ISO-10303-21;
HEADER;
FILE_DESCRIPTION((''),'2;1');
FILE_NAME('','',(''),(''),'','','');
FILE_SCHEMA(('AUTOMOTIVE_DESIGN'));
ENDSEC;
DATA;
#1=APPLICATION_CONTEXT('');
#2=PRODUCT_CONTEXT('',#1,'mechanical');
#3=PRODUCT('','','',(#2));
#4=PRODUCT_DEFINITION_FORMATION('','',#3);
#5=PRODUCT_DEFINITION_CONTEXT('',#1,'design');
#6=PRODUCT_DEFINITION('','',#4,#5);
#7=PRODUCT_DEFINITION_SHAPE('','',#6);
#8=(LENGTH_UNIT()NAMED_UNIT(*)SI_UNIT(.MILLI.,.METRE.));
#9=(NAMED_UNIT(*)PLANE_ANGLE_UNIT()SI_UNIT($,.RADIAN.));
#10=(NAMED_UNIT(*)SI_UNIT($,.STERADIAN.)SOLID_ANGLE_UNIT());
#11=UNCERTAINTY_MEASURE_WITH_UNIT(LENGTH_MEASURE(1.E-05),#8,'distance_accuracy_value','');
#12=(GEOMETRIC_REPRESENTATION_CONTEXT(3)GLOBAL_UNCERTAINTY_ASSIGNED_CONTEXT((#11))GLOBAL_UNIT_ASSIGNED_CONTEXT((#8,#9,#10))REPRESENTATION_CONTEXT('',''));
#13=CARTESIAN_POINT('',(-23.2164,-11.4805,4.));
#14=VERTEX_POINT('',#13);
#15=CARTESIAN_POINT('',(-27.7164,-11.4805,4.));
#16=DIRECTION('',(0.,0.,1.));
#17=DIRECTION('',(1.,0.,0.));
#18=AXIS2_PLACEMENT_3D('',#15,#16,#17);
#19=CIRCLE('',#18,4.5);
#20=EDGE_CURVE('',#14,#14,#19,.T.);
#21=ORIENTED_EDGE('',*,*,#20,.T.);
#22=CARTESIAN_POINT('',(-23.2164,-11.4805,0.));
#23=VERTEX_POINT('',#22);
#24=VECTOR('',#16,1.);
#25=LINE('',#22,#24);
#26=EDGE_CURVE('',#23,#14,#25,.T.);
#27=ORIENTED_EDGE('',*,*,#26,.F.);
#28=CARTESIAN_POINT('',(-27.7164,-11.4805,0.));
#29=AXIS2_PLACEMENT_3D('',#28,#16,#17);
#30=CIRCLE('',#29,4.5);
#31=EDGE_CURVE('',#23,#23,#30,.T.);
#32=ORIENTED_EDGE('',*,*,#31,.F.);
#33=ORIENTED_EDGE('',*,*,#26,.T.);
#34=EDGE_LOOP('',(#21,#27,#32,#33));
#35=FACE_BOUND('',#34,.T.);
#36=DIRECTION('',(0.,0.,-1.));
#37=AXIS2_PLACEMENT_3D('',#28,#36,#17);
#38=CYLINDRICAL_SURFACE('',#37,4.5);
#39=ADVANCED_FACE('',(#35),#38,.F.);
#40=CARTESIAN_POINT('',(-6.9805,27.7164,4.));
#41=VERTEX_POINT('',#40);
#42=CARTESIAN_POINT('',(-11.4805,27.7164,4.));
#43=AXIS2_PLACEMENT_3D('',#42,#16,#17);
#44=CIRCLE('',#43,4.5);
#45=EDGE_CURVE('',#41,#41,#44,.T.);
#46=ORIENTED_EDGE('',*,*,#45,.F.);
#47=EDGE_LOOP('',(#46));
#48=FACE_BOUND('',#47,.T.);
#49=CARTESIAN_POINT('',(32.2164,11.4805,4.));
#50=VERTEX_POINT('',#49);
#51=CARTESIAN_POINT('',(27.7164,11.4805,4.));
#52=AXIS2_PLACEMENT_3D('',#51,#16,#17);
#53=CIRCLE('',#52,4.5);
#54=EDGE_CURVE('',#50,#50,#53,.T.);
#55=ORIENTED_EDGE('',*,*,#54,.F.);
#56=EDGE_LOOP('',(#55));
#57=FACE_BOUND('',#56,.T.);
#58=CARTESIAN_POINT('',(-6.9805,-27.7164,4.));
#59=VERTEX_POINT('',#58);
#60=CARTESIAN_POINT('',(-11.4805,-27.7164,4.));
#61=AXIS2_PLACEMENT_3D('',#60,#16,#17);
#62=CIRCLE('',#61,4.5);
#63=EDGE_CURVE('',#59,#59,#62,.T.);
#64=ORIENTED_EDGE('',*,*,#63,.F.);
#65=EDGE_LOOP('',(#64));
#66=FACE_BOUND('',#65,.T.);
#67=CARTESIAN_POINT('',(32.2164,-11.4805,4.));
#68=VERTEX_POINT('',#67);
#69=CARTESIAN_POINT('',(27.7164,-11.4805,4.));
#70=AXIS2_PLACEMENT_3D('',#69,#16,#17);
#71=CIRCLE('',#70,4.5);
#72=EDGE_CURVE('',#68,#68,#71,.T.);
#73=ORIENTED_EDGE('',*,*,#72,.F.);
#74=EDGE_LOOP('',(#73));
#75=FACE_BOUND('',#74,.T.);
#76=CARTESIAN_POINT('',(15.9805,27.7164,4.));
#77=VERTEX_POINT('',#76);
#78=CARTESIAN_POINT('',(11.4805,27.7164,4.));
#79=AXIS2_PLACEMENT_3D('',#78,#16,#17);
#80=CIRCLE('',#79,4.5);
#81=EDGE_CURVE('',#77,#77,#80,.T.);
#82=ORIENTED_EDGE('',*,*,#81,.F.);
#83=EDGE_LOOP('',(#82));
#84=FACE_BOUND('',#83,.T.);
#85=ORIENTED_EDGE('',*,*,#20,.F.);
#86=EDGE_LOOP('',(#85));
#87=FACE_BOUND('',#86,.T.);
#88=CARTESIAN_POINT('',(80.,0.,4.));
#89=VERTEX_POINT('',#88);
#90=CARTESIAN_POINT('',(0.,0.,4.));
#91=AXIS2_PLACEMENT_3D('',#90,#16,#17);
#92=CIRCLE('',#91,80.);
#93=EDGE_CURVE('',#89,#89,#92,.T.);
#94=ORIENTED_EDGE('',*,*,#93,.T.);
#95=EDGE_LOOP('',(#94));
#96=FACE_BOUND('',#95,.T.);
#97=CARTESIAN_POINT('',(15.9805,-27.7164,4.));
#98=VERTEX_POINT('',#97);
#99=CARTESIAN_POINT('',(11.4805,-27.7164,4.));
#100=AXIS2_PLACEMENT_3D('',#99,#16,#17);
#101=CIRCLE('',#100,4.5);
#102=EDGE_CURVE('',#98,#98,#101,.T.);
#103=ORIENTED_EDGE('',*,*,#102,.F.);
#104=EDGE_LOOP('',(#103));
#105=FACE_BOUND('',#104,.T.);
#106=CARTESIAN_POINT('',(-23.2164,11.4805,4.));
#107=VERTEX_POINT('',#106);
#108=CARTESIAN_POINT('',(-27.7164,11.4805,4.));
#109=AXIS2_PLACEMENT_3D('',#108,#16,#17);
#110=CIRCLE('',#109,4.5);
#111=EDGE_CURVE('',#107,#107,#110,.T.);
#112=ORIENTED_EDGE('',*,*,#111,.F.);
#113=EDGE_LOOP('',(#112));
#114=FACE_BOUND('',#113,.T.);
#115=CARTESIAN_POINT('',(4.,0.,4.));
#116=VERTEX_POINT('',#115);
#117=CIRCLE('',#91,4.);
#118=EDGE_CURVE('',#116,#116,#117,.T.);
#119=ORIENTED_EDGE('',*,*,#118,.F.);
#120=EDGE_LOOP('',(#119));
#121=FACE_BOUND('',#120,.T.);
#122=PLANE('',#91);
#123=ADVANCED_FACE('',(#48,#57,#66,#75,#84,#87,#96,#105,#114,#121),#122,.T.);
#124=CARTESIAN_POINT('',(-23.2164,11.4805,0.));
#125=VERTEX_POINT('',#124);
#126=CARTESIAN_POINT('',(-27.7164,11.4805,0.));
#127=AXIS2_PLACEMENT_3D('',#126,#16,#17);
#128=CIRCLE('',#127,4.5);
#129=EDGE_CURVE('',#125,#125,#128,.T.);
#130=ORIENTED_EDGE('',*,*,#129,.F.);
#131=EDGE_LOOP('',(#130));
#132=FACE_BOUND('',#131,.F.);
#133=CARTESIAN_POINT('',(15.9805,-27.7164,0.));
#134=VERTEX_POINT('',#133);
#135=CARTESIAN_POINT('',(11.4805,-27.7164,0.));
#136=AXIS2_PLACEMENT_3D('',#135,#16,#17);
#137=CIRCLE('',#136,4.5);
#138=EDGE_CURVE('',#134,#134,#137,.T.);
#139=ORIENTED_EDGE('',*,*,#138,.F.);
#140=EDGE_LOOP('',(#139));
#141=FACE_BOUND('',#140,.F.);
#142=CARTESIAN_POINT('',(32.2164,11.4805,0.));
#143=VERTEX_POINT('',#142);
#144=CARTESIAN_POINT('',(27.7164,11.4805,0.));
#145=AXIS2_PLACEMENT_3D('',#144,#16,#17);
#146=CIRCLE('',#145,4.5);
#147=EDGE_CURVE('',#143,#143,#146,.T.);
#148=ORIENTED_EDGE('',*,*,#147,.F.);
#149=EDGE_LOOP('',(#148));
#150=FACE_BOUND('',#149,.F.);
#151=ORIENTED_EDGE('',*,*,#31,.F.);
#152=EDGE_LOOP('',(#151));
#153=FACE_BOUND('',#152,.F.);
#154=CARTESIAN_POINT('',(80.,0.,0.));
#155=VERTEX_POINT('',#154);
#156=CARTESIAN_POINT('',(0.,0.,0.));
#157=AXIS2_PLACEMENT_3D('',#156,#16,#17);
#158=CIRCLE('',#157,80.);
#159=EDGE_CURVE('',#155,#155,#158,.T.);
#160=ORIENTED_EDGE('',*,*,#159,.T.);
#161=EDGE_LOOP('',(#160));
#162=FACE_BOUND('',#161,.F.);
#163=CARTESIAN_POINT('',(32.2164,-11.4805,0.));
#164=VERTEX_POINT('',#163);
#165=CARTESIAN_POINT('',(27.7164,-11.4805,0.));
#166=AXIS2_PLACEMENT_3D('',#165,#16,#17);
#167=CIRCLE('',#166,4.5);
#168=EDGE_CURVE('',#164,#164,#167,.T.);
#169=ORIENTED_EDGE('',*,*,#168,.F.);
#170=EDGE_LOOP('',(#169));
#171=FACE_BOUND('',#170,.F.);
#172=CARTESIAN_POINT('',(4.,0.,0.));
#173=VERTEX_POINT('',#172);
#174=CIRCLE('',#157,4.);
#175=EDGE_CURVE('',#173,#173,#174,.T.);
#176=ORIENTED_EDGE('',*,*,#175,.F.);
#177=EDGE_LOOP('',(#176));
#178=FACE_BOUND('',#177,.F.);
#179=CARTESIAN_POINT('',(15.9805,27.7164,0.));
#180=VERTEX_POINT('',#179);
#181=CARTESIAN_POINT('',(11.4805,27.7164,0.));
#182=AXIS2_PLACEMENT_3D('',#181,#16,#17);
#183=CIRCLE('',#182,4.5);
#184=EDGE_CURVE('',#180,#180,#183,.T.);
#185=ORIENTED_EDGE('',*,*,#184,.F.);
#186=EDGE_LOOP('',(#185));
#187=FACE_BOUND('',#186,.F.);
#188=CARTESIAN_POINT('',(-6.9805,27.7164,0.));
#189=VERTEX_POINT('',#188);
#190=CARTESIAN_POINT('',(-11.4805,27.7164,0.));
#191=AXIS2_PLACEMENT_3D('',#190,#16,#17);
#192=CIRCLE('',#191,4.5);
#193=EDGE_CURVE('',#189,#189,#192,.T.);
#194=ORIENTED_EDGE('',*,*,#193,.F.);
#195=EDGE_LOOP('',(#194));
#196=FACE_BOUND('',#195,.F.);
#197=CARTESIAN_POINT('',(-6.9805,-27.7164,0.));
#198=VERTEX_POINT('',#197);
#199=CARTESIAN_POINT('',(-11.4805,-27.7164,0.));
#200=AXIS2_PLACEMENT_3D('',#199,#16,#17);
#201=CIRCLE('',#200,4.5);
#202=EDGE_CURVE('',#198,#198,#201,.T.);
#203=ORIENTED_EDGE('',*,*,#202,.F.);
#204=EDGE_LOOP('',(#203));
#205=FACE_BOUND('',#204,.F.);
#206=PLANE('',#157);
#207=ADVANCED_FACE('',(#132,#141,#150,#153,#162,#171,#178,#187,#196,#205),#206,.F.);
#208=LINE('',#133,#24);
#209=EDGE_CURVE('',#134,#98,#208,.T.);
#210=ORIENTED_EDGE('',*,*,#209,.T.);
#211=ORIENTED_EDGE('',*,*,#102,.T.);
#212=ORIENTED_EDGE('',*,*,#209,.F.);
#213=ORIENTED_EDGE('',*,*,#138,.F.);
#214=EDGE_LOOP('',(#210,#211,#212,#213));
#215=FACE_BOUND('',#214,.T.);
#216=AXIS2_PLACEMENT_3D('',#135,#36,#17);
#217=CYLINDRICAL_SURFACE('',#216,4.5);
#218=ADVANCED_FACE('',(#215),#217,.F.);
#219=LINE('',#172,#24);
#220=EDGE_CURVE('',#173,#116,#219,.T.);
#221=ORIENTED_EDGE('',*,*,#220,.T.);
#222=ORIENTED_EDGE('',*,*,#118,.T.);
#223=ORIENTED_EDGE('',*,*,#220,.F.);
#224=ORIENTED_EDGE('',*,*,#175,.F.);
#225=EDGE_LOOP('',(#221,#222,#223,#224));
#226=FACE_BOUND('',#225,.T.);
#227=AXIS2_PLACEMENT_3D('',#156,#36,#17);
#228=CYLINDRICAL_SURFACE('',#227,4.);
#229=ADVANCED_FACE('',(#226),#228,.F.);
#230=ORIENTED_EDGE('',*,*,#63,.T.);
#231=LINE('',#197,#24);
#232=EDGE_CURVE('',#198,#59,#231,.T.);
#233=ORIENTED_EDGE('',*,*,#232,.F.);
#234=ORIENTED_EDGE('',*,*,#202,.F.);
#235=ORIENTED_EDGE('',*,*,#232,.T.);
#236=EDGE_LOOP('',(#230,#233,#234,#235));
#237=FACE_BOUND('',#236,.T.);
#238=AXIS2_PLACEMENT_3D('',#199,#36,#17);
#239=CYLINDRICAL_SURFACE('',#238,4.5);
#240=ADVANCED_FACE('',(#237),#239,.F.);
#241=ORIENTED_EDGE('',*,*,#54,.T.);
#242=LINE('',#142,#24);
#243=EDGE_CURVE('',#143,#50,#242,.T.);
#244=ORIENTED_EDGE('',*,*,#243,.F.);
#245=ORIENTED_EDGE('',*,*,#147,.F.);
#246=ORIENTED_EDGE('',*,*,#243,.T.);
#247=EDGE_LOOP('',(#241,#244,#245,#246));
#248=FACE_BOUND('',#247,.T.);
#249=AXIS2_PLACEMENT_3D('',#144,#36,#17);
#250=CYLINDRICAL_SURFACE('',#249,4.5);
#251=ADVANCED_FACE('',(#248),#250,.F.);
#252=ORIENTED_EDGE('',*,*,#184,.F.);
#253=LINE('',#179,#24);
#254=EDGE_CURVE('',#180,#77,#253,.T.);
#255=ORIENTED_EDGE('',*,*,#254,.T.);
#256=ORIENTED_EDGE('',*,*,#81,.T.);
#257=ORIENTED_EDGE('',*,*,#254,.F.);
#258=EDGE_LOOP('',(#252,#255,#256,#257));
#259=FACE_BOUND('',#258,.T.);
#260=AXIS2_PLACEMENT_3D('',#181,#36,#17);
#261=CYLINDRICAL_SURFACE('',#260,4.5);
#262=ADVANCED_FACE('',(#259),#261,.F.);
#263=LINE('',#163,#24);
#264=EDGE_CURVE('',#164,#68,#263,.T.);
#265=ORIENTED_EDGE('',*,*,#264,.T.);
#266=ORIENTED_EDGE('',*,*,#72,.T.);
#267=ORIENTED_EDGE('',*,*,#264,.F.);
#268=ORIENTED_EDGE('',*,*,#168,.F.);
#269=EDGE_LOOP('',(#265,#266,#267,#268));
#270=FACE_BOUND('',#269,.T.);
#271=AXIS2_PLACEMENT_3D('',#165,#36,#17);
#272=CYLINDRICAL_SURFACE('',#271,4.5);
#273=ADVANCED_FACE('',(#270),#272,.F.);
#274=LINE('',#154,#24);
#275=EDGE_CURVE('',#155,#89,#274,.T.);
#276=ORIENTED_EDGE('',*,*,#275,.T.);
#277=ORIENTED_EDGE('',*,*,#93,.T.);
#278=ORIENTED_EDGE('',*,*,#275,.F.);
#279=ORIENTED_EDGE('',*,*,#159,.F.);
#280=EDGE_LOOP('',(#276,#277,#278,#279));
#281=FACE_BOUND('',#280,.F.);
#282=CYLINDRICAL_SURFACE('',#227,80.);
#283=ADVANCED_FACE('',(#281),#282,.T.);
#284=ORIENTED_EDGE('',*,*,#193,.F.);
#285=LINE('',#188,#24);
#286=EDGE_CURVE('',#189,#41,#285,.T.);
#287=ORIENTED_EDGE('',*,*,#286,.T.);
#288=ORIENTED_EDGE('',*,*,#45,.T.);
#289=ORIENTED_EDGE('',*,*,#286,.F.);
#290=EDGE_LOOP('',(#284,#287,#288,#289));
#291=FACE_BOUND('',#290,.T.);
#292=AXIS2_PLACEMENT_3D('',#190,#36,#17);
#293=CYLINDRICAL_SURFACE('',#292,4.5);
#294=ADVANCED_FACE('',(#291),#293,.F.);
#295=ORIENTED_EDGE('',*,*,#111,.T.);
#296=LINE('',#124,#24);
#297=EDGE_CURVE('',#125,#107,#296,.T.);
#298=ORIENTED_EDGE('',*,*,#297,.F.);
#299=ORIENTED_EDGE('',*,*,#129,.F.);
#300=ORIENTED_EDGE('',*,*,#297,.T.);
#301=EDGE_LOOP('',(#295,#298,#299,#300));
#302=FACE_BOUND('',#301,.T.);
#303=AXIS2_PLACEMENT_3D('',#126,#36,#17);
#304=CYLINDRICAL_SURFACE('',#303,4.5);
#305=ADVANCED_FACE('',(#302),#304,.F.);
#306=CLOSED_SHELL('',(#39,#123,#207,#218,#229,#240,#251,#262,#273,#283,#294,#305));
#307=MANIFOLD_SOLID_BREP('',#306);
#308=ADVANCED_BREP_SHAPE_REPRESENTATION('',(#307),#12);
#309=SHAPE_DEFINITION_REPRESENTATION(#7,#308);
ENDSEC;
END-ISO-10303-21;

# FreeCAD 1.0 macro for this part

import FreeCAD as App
import Part
import Sketcher

doc = App.newDocument("Part")
body = doc.addObject("PartDesign::Body", "Body")

# Sketch on XY plane
sketch1 = body.newObject("Sketcher::SketchObject", "Sketch")
sketch1.AttachmentSupport = (doc.getObject("XY_Plane"), [""])
sketch1.MapMode = "FlatFace"
sketch1.addGeometry([
    Part.Circle(App.Vector(0, 0, 0), App.Vector(0, 0, 1), 80),  # 0
    Part.Circle(App.Vector(-11.5, -27.7, 0), App.Vector(0, 0, 1), 4.5),  # 1
    Part.Circle(App.Vector(-27.7, -11.5, 0), App.Vector(0, 0, 1), 4.5),  # 2
    Part.Circle(App.Vector(11.5, -27.7, 0), App.Vector(0, 0, 1), 4.5),  # 3
    Part.Circle(App.Vector(27.7, -11.5, 0), App.Vector(0, 0, 1), 4.5),  # 4
    Part.Circle(App.Vector(-27.7, 11.5, 0), App.Vector(0, 0, 1), 4.5),  # 5
    Part.Circle(App.Vector(-11.5, 27.7, 0), App.Vector(0, 0, 1), 4.5),  # 6
    Part.Circle(App.Vector(0, 0, 0), App.Vector(0, 0, 1), 4),  # 7
    Part.Circle(App.Vector(27.7, 11.5, 0), App.Vector(0, 0, 1), 4.5),  # 8
    Part.Circle(App.Vector(11.5, 27.7, 0), App.Vector(0, 0, 1), 4.5),  # 9
], False)
sketch1.addConstraint([
    Sketcher.Constraint("Coincident", 0, 3, -1, 1),
    Sketcher.Constraint("Coincident", 7, 3, -1, 1),
    Sketcher.Constraint("Equal", 1, 2),
    Sketcher.Constraint("Equal", 2, 3),
    Sketcher.Constraint("Equal", 3, 4),
    Sketcher.Constraint("Equal", 4, 5),
    Sketcher.Constraint("Equal", 5, 6),
    Sketcher.Constraint("Equal", 6, 8),
    Sketcher.Constraint("Equal", 8, 9),
    Sketcher.Constraint("Symmetric", 4, 3, 5, 3, -1, 1),
    Sketcher.Constraint("Symmetric", 3, 3, 6, 3, -1, 1),
    Sketcher.Constraint("Symmetric", 2, 3, 8, 3, -1, 1),
    Sketcher.Constraint("Symmetric", 1, 3, 9, 3, -1, 1),
    Sketcher.Constraint("Symmetric", 1, 3, 3, 3, -2),
    Sketcher.Constraint("Symmetric", 2, 3, 4, 3, -2),
    Sketcher.Constraint("Diameter", 0, 160.0),
    Sketcher.Constraint("Diameter", 1, 9.0),
    Sketcher.Constraint("Diameter", 7, 8.0),
    Sketcher.Constraint("DistanceX", 2, 3, 1, 3, 16.236),
    Sketcher.Constraint("DistanceY", 1, 3, 2, 3, 16.236),
    Sketcher.Constraint("DistanceX", 1, 3, 3, 3, 22.961),
    Sketcher.Constraint("DistanceY", 2, 3, 5, 3, 22.961),
])
pad1 = body.newObject("PartDesign::Pad", "Pad")
pad1.Profile = sketch1
pad1.Length = 4

doc.recompute()
